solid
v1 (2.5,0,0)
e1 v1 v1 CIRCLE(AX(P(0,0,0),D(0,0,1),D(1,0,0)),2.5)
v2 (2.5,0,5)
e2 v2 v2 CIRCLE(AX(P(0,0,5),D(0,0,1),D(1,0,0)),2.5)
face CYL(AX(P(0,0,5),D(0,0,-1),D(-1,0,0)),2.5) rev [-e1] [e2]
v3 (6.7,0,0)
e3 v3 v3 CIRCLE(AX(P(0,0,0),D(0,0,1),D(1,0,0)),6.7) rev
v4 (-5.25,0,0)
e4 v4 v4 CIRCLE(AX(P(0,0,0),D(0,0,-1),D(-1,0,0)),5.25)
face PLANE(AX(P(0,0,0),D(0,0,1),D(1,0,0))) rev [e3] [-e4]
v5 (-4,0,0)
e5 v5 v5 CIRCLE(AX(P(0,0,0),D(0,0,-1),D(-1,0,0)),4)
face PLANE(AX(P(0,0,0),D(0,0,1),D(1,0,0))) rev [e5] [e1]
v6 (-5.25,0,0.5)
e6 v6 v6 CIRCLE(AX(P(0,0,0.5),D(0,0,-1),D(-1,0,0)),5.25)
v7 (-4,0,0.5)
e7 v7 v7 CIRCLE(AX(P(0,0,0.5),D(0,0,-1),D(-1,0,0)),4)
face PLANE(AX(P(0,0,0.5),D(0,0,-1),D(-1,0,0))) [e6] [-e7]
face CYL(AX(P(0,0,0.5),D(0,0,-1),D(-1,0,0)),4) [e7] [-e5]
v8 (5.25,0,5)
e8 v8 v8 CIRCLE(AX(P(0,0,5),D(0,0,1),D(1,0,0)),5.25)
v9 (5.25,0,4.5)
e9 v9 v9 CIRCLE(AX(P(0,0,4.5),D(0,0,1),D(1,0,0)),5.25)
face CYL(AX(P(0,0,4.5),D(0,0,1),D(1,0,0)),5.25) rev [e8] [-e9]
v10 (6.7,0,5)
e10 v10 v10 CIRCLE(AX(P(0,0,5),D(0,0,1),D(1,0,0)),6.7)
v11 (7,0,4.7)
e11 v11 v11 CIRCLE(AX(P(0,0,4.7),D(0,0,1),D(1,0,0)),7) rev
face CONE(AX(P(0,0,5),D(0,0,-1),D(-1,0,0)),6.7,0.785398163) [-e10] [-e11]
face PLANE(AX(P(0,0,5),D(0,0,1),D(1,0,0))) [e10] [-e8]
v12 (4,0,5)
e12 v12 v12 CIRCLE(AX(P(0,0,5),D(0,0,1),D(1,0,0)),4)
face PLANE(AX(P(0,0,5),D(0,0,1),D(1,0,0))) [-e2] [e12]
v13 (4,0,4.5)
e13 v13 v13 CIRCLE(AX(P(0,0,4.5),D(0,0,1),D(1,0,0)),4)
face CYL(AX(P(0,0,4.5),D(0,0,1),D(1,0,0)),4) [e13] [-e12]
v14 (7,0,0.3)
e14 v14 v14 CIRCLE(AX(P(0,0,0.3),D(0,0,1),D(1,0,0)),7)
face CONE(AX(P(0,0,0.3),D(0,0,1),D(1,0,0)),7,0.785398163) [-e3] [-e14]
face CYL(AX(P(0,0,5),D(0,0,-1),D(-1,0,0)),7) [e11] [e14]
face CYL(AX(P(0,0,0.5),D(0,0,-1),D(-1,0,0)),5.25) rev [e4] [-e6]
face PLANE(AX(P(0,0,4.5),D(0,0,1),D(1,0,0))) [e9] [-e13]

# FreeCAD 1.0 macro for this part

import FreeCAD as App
import Part
import Sketcher

V = App.Vector
Q = App.Units.Quantity


def edges_at(feature, points):
    """Names of the edges that pass closest to the given points."""
    edges = feature.Shape.Edges
    near = lambda p: min(range(len(edges)), key=lambda i: edges[i].distToShape(Part.Vertex(*p))[0])
    return sorted({f"Edge{near(p) + 1}" for p in points})

doc = App.newDocument("Part")
params = doc.addObject("Spreadsheet::Sheet", "Params")
for row, (alias, value) in enumerate([
    ("sketch1_diameter", "14 mm"),
    ("sketch1_diameter2", "5 mm"),
    ("pad1_length", "5 mm"),
    ("sketch2_diameter", "8 mm"),
    ("sketch2_diameter2", "10.5 mm"),
    ("pocket1_length", "0.5 mm"),
    ("sketch3_diameter", "8 mm"),
    ("sketch3_diameter2", "10.5 mm"),
    ("pocket2_length", "0.5 mm"),
    ("chamfer_size", "0.3 mm"),
], start=1):
    params.set(f"A{row}", alias)
    params.set(f"B{row}", "=" + value)
    params.setAlias(f"B{row}", alias)

body = doc.addObject("PartDesign::Body", "Body")

# Sketch on XY plane
sketch1 = body.newObject("Sketcher::SketchObject", "Sketch")
sketch1.AttachmentSupport = (doc.getObject("XY_Plane"), [""])
sketch1.MapMode = "FlatFace"
sketch1.addGeometry(Part.Circle(V(0, 0, 0), V(0, 0, 1), 7), False)
sketch1.addGeometry(Part.Circle(V(0, 0, 0), V(0, 0, 1), 2.5), False)
sketch1.addConstraint(Sketcher.Constraint("Coincident", 0, 3, -1, 1))
sketch1.addConstraint(Sketcher.Constraint("Coincident", 1, 3, -1, 1))
sketch1.addConstraint(Sketcher.Constraint("Diameter", 0, Q("14 mm")))
sketch1.addConstraint(Sketcher.Constraint("Diameter", 1, Q("5 mm")))
sketch1.setExpression("Constraints[2]", "Params.sketch1_diameter")
sketch1.setExpression("Constraints[3]", "Params.sketch1_diameter2")
pad1 = body.newObject("PartDesign::Pad", "Pad")
pad1.Profile = sketch1
pad1.setExpression("Length", "Params.pad1_length")

# Sketch on XY plane
sketch2 = body.newObject("Sketcher::SketchObject", "Sketch001")
sketch2.AttachmentSupport = (doc.getObject("XY_Plane"), [""])
sketch2.MapMode = "FlatFace"
sketch2.AttachmentOffset = App.Placement(V(0, 0, 5), App.Rotation())
sketch2.addGeometry(Part.Circle(V(0, 0, 0), V(0, 0, 1), 5.2), False)
sketch2.addGeometry(Part.Circle(V(0, 0, 0), V(0, 0, 1), 4), False)
sketch2.addConstraint(Sketcher.Constraint("Coincident", 0, 3, -1, 1))
sketch2.addConstraint(Sketcher.Constraint("Coincident", 1, 3, -1, 1))
sketch2.addConstraint(Sketcher.Constraint("Diameter", 1, Q("8 mm")))
sketch2.addConstraint(Sketcher.Constraint("Diameter", 0, Q("10.5 mm")))
sketch2.setExpression("Constraints[2]", "Params.sketch2_diameter")
sketch2.setExpression("Constraints[3]", "Params.sketch2_diameter2")
pocket1 = body.newObject("PartDesign::Pocket", "Pocket")
pocket1.Profile = sketch2
pocket1.setExpression("Length", "Params.pocket1_length")

# Sketch on XY plane
sketch3 = body.newObject("Sketcher::SketchObject", "Sketch002")
sketch3.AttachmentSupport = (doc.getObject("XY_Plane"), [""])
sketch3.MapMode = "FlatFace"
sketch3.AttachmentOffset = App.Placement(V(0, 0, 0.5), App.Rotation())
sketch3.addGeometry(Part.Circle(V(0, 0, 0), V(0, 0, 1), 5.2), False)
sketch3.addGeometry(Part.Circle(V(0, 0, 0), V(0, 0, 1), 4), False)
sketch3.addConstraint(Sketcher.Constraint("Coincident", 0, 3, -1, 1))
sketch3.addConstraint(Sketcher.Constraint("Coincident", 1, 3, -1, 1))
sketch3.addConstraint(Sketcher.Constraint("Diameter", 1, Q("8 mm")))
sketch3.addConstraint(Sketcher.Constraint("Diameter", 0, Q("10.5 mm")))
sketch3.setExpression("Constraints[2]", "Params.sketch3_diameter")
sketch3.setExpression("Constraints[3]", "Params.sketch3_diameter2")
pocket2 = body.newObject("PartDesign::Pocket", "Pocket001")
pocket2.Profile = sketch3
pocket2.setExpression("Length", "Params.pocket2_length")
doc.recompute()

chamfer = body.newObject("PartDesign::Chamfer", "Chamfer")
chamfer.Base = (pocket2, edges_at(pocket2, [(-7, 0, 0), (-7, 0, 5)]))
chamfer.setExpression("Size", "Params.chamfer_size")

doc.recompute()
